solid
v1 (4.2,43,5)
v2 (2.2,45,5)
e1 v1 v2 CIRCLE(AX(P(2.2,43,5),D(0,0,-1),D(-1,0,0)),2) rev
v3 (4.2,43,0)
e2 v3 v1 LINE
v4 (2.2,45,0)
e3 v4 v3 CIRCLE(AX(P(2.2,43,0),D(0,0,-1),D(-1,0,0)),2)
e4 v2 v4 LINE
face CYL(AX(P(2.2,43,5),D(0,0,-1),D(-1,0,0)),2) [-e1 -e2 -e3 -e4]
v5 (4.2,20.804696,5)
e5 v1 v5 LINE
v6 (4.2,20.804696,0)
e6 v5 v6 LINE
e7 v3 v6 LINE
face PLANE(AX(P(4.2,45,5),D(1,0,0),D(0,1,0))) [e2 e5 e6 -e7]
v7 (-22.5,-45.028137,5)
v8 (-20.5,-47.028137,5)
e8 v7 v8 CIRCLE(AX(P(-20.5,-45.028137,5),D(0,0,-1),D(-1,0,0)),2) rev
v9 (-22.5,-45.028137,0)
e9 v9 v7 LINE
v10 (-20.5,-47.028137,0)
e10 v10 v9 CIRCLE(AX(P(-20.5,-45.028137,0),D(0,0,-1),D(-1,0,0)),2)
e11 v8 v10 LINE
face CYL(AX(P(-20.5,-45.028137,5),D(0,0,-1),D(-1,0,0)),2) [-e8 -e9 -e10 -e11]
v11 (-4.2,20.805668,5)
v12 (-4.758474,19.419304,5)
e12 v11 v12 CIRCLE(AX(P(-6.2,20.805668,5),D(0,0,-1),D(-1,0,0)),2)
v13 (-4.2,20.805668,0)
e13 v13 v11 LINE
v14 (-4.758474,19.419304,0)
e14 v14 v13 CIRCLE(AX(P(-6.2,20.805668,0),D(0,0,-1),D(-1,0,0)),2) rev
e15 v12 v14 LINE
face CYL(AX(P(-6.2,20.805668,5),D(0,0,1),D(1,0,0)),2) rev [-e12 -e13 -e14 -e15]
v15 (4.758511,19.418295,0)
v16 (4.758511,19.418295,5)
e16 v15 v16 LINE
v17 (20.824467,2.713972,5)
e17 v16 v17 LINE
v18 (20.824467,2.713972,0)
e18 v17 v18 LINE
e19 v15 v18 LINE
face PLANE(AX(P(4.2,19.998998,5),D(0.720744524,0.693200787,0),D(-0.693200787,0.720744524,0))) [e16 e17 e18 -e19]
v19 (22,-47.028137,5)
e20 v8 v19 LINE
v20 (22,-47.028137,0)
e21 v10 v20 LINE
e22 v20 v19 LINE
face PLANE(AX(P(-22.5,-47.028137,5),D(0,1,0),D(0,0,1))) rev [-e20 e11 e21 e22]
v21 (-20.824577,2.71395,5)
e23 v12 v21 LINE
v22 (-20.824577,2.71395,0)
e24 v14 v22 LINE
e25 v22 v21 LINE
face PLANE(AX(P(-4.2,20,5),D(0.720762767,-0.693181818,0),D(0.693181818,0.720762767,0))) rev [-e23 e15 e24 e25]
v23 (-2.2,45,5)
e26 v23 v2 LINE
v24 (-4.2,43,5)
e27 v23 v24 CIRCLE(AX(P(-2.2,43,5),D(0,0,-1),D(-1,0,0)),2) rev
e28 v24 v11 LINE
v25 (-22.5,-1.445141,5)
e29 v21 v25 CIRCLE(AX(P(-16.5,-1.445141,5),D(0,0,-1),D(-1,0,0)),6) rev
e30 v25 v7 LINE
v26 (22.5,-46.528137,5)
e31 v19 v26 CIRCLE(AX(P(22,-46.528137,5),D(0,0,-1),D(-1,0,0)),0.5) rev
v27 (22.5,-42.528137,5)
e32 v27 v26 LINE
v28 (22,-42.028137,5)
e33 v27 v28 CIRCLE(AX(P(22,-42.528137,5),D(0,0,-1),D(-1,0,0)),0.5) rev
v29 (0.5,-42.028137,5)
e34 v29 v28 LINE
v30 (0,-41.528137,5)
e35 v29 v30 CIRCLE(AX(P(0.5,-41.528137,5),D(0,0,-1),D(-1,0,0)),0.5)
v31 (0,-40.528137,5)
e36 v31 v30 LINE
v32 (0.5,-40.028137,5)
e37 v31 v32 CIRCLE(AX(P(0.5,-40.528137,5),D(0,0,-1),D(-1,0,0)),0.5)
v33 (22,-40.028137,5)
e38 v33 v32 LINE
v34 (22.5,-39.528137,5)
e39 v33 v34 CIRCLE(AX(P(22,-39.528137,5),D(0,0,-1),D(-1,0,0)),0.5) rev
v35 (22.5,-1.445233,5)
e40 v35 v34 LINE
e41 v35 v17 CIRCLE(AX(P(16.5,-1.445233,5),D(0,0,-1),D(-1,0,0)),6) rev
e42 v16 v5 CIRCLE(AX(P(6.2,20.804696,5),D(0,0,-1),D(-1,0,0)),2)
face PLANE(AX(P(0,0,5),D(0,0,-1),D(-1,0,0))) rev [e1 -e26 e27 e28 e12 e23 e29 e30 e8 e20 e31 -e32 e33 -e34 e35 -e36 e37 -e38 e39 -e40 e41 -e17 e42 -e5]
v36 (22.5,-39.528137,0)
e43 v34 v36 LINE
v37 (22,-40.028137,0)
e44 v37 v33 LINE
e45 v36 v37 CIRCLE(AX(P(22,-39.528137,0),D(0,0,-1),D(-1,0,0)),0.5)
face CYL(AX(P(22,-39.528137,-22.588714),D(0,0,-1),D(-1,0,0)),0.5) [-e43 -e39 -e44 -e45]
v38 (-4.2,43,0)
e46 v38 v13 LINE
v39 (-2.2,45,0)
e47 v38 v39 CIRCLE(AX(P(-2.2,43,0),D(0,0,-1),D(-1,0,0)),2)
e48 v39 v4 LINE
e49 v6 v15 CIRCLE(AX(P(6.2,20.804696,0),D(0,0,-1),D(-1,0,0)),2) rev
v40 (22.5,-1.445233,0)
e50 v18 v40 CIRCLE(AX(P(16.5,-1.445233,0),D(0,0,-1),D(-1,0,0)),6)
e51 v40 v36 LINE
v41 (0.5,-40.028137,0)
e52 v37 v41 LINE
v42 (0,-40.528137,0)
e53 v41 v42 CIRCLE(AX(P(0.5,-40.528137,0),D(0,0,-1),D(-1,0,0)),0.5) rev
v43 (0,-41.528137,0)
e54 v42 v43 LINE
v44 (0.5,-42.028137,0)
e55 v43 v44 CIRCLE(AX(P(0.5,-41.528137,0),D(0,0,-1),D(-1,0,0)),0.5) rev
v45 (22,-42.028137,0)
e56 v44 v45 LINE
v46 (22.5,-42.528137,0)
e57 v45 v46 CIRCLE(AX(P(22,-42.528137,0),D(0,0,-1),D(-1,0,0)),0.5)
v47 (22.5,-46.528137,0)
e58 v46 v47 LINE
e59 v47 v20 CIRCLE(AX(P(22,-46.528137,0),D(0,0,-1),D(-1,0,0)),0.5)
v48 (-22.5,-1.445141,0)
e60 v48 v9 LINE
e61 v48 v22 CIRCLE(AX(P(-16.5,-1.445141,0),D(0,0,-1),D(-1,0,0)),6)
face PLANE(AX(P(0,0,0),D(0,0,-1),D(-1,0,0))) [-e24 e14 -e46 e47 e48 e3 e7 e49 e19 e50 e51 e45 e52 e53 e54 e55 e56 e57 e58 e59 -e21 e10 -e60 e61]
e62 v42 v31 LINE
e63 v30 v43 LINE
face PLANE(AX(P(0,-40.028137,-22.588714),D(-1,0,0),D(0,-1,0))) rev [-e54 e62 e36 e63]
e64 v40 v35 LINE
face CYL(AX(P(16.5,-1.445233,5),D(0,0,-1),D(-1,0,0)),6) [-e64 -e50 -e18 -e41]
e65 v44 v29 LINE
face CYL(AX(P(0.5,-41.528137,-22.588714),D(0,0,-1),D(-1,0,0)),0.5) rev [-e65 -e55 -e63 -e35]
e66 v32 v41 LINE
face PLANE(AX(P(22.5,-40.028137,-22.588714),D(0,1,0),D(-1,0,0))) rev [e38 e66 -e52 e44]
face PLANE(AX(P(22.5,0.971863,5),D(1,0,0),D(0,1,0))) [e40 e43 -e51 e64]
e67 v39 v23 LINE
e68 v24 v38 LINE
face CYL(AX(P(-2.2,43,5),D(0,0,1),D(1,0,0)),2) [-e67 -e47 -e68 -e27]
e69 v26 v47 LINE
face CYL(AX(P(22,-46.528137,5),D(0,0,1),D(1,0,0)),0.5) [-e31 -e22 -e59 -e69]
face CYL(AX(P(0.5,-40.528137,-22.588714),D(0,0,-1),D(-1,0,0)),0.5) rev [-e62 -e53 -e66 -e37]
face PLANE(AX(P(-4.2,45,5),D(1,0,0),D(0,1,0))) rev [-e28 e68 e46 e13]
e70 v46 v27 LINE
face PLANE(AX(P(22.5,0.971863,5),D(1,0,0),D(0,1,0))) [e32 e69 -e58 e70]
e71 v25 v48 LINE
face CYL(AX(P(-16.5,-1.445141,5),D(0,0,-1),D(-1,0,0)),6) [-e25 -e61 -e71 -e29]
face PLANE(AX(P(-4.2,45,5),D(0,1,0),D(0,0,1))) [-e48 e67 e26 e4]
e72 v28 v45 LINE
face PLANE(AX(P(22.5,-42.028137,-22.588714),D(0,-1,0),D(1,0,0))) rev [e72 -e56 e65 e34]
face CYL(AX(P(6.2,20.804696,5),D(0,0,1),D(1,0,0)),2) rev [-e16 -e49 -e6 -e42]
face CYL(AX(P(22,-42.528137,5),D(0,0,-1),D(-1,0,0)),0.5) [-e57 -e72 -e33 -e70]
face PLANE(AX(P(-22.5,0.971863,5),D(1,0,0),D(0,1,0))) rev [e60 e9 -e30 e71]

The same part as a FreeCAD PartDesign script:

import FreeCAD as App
import Part
import Sketcher

V = App.Vector
Q = App.Units.Quantity


def edges_at(feature, points):
    """Names of the edges that pass closest to the given points."""
    edges = feature.Shape.Edges
    near = lambda p: min(range(len(edges)), key=lambda i: edges[i].distToShape(Part.Vertex(*p))[0])
    return sorted({f"Edge{near(p) + 1}" for p in points})


def add_polygon(sketch, points):
    """Adds a closed chain of lines whose ends are joined by coincident constraints."""
    first, n = sketch.GeometryCount, len(points)
    for a, b in zip(points, points[1:] + points[:1]):
        sketch.addGeometry(Part.LineSegment(App.Vector(*a, 0), App.Vector(*b, 0)), False)
    for i in range(n):
        sketch.addConstraint(Sketcher.Constraint("Coincident", first + i, 2, first + (i + 1) % n, 1))

doc = App.newDocument("Part")
body = doc.addObject("PartDesign::Body", "Body")

# Sketch on XY plane
sketch1 = body.newObject("Sketcher::SketchObject", "Sketch")
sketch1.AttachmentSupport = (doc.getObject("XY_Plane"), [""])
sketch1.MapMode = "FlatFace"
add_polygon(sketch1, [(-4, 20), (-22, 1), (-22, -47), (22, -47), (22, 1), (4, 20), (4, 45), (-4, 45)])  # lines 0-7
sketch1.addConstraint([
    Sketcher.Constraint("Vertical", 1),
    Sketcher.Constraint("Horizontal", 2),
    Sketcher.Constraint("Vertical", 3),
    Sketcher.Constraint("Vertical", 5),
    Sketcher.Constraint("Horizontal", 6),
    Sketcher.Constraint("Vertical", 7),
    Sketcher.Constraint("Symmetric", 0, 2, 3, 2, -2),
    Sketcher.Constraint("DistanceX", 2, 1, 2, 2, Q("45 mm")),
    Sketcher.Constraint("DistanceY", 1, 2, 1, 1, Q("48 mm")),
    Sketcher.Constraint("DistanceY", 7, 2, 7, 1, Q("25 mm")),
    Sketcher.Constraint("DistanceX", 6, 2, 6, 1, Q("8.4 mm")),
    Sketcher.Constraint("DistanceY", -1, 1, 5, 2, Q("45 mm")),
    Sketcher.Constraint("Distance", 0, Q("26.4 mm")),
    Sketcher.Constraint("DistanceX", -1, 1, 4, 2, Q("4.2 mm")),
    Sketcher.Constraint("DistanceY", 5, 1, 5, 2, Q("25.001002 mm")),
])
pad1 = body.newObject("PartDesign::Pad", "Pad")
pad1.Profile = sketch1
pad1.Length = 5

# Sketch on XY plane
sketch2 = body.newObject("Sketcher::SketchObject", "Sketch001")
sketch2.AttachmentSupport = (doc.getObject("XY_Plane"), [""])
sketch2.MapMode = "FlatFace"
sketch2.AttachmentOffset = App.Placement(V(0, 0, 5), App.Rotation())
add_polygon(sketch2, [(0, -40), (0, -42), (22.5, -42), (22.5, -40)])  # lines 0-3
sketch2.addConstraint([
    Sketcher.Constraint("Vertical", 0),
    Sketcher.Constraint("Horizontal", 1),
    Sketcher.Constraint("Vertical", 2),
    Sketcher.Constraint("Horizontal", 3),
    Sketcher.Constraint("PointOnObject", 0, 2, -2),
    Sketcher.Constraint("DistanceY", 0, 2, 0, 1, Q("2 mm")),
    Sketcher.Constraint("DistanceX", 1, 1, 1, 2, Q("22.5 mm")),
    Sketcher.Constraint("DistanceY", 0, 2, -1, 1, Q("42.028137 mm")),
])
pocket1 = body.newObject("PartDesign::Pocket", "Pocket")
pocket1.Profile = sketch2
pocket1.Length = 5
doc.recompute()

fillet = body.newObject("PartDesign::Fillet", "Fillet")
fillet.Base = (pocket1, edges_at(pocket1, [
    (-4.2, 45, 2.5),
    (-4.2, 20, 2.5),
    (-22.5, -47.028, 2.5),
    (4.2, 19.999, 2.5),
    (4.2, 45, 2.5),
]))
fillet.Radius = 2
doc.recompute()

fillet2 = body.newObject("PartDesign::Fillet", "Fillet001")
fillet2.Base = (fillet, edges_at(fillet, [(-22.5, 0.972, 2.5), (22.5, 0.972, 2.5)]))
fillet2.Radius = 6
doc.recompute()

fillet3 = body.newObject("PartDesign::Fillet", "Fillet002")
fillet3.Base = (fillet2, edges_at(fillet2, [
    (22.5, -47.028, 2.5),
    (0, -40.028, 2.5),
    (0, -42.028, 2.5),
    (22.5, -42.028, 2.5),
    (22.5, -40.028, 2.5),
]))
fillet3.Radius = 0.5

doc.recompute()
